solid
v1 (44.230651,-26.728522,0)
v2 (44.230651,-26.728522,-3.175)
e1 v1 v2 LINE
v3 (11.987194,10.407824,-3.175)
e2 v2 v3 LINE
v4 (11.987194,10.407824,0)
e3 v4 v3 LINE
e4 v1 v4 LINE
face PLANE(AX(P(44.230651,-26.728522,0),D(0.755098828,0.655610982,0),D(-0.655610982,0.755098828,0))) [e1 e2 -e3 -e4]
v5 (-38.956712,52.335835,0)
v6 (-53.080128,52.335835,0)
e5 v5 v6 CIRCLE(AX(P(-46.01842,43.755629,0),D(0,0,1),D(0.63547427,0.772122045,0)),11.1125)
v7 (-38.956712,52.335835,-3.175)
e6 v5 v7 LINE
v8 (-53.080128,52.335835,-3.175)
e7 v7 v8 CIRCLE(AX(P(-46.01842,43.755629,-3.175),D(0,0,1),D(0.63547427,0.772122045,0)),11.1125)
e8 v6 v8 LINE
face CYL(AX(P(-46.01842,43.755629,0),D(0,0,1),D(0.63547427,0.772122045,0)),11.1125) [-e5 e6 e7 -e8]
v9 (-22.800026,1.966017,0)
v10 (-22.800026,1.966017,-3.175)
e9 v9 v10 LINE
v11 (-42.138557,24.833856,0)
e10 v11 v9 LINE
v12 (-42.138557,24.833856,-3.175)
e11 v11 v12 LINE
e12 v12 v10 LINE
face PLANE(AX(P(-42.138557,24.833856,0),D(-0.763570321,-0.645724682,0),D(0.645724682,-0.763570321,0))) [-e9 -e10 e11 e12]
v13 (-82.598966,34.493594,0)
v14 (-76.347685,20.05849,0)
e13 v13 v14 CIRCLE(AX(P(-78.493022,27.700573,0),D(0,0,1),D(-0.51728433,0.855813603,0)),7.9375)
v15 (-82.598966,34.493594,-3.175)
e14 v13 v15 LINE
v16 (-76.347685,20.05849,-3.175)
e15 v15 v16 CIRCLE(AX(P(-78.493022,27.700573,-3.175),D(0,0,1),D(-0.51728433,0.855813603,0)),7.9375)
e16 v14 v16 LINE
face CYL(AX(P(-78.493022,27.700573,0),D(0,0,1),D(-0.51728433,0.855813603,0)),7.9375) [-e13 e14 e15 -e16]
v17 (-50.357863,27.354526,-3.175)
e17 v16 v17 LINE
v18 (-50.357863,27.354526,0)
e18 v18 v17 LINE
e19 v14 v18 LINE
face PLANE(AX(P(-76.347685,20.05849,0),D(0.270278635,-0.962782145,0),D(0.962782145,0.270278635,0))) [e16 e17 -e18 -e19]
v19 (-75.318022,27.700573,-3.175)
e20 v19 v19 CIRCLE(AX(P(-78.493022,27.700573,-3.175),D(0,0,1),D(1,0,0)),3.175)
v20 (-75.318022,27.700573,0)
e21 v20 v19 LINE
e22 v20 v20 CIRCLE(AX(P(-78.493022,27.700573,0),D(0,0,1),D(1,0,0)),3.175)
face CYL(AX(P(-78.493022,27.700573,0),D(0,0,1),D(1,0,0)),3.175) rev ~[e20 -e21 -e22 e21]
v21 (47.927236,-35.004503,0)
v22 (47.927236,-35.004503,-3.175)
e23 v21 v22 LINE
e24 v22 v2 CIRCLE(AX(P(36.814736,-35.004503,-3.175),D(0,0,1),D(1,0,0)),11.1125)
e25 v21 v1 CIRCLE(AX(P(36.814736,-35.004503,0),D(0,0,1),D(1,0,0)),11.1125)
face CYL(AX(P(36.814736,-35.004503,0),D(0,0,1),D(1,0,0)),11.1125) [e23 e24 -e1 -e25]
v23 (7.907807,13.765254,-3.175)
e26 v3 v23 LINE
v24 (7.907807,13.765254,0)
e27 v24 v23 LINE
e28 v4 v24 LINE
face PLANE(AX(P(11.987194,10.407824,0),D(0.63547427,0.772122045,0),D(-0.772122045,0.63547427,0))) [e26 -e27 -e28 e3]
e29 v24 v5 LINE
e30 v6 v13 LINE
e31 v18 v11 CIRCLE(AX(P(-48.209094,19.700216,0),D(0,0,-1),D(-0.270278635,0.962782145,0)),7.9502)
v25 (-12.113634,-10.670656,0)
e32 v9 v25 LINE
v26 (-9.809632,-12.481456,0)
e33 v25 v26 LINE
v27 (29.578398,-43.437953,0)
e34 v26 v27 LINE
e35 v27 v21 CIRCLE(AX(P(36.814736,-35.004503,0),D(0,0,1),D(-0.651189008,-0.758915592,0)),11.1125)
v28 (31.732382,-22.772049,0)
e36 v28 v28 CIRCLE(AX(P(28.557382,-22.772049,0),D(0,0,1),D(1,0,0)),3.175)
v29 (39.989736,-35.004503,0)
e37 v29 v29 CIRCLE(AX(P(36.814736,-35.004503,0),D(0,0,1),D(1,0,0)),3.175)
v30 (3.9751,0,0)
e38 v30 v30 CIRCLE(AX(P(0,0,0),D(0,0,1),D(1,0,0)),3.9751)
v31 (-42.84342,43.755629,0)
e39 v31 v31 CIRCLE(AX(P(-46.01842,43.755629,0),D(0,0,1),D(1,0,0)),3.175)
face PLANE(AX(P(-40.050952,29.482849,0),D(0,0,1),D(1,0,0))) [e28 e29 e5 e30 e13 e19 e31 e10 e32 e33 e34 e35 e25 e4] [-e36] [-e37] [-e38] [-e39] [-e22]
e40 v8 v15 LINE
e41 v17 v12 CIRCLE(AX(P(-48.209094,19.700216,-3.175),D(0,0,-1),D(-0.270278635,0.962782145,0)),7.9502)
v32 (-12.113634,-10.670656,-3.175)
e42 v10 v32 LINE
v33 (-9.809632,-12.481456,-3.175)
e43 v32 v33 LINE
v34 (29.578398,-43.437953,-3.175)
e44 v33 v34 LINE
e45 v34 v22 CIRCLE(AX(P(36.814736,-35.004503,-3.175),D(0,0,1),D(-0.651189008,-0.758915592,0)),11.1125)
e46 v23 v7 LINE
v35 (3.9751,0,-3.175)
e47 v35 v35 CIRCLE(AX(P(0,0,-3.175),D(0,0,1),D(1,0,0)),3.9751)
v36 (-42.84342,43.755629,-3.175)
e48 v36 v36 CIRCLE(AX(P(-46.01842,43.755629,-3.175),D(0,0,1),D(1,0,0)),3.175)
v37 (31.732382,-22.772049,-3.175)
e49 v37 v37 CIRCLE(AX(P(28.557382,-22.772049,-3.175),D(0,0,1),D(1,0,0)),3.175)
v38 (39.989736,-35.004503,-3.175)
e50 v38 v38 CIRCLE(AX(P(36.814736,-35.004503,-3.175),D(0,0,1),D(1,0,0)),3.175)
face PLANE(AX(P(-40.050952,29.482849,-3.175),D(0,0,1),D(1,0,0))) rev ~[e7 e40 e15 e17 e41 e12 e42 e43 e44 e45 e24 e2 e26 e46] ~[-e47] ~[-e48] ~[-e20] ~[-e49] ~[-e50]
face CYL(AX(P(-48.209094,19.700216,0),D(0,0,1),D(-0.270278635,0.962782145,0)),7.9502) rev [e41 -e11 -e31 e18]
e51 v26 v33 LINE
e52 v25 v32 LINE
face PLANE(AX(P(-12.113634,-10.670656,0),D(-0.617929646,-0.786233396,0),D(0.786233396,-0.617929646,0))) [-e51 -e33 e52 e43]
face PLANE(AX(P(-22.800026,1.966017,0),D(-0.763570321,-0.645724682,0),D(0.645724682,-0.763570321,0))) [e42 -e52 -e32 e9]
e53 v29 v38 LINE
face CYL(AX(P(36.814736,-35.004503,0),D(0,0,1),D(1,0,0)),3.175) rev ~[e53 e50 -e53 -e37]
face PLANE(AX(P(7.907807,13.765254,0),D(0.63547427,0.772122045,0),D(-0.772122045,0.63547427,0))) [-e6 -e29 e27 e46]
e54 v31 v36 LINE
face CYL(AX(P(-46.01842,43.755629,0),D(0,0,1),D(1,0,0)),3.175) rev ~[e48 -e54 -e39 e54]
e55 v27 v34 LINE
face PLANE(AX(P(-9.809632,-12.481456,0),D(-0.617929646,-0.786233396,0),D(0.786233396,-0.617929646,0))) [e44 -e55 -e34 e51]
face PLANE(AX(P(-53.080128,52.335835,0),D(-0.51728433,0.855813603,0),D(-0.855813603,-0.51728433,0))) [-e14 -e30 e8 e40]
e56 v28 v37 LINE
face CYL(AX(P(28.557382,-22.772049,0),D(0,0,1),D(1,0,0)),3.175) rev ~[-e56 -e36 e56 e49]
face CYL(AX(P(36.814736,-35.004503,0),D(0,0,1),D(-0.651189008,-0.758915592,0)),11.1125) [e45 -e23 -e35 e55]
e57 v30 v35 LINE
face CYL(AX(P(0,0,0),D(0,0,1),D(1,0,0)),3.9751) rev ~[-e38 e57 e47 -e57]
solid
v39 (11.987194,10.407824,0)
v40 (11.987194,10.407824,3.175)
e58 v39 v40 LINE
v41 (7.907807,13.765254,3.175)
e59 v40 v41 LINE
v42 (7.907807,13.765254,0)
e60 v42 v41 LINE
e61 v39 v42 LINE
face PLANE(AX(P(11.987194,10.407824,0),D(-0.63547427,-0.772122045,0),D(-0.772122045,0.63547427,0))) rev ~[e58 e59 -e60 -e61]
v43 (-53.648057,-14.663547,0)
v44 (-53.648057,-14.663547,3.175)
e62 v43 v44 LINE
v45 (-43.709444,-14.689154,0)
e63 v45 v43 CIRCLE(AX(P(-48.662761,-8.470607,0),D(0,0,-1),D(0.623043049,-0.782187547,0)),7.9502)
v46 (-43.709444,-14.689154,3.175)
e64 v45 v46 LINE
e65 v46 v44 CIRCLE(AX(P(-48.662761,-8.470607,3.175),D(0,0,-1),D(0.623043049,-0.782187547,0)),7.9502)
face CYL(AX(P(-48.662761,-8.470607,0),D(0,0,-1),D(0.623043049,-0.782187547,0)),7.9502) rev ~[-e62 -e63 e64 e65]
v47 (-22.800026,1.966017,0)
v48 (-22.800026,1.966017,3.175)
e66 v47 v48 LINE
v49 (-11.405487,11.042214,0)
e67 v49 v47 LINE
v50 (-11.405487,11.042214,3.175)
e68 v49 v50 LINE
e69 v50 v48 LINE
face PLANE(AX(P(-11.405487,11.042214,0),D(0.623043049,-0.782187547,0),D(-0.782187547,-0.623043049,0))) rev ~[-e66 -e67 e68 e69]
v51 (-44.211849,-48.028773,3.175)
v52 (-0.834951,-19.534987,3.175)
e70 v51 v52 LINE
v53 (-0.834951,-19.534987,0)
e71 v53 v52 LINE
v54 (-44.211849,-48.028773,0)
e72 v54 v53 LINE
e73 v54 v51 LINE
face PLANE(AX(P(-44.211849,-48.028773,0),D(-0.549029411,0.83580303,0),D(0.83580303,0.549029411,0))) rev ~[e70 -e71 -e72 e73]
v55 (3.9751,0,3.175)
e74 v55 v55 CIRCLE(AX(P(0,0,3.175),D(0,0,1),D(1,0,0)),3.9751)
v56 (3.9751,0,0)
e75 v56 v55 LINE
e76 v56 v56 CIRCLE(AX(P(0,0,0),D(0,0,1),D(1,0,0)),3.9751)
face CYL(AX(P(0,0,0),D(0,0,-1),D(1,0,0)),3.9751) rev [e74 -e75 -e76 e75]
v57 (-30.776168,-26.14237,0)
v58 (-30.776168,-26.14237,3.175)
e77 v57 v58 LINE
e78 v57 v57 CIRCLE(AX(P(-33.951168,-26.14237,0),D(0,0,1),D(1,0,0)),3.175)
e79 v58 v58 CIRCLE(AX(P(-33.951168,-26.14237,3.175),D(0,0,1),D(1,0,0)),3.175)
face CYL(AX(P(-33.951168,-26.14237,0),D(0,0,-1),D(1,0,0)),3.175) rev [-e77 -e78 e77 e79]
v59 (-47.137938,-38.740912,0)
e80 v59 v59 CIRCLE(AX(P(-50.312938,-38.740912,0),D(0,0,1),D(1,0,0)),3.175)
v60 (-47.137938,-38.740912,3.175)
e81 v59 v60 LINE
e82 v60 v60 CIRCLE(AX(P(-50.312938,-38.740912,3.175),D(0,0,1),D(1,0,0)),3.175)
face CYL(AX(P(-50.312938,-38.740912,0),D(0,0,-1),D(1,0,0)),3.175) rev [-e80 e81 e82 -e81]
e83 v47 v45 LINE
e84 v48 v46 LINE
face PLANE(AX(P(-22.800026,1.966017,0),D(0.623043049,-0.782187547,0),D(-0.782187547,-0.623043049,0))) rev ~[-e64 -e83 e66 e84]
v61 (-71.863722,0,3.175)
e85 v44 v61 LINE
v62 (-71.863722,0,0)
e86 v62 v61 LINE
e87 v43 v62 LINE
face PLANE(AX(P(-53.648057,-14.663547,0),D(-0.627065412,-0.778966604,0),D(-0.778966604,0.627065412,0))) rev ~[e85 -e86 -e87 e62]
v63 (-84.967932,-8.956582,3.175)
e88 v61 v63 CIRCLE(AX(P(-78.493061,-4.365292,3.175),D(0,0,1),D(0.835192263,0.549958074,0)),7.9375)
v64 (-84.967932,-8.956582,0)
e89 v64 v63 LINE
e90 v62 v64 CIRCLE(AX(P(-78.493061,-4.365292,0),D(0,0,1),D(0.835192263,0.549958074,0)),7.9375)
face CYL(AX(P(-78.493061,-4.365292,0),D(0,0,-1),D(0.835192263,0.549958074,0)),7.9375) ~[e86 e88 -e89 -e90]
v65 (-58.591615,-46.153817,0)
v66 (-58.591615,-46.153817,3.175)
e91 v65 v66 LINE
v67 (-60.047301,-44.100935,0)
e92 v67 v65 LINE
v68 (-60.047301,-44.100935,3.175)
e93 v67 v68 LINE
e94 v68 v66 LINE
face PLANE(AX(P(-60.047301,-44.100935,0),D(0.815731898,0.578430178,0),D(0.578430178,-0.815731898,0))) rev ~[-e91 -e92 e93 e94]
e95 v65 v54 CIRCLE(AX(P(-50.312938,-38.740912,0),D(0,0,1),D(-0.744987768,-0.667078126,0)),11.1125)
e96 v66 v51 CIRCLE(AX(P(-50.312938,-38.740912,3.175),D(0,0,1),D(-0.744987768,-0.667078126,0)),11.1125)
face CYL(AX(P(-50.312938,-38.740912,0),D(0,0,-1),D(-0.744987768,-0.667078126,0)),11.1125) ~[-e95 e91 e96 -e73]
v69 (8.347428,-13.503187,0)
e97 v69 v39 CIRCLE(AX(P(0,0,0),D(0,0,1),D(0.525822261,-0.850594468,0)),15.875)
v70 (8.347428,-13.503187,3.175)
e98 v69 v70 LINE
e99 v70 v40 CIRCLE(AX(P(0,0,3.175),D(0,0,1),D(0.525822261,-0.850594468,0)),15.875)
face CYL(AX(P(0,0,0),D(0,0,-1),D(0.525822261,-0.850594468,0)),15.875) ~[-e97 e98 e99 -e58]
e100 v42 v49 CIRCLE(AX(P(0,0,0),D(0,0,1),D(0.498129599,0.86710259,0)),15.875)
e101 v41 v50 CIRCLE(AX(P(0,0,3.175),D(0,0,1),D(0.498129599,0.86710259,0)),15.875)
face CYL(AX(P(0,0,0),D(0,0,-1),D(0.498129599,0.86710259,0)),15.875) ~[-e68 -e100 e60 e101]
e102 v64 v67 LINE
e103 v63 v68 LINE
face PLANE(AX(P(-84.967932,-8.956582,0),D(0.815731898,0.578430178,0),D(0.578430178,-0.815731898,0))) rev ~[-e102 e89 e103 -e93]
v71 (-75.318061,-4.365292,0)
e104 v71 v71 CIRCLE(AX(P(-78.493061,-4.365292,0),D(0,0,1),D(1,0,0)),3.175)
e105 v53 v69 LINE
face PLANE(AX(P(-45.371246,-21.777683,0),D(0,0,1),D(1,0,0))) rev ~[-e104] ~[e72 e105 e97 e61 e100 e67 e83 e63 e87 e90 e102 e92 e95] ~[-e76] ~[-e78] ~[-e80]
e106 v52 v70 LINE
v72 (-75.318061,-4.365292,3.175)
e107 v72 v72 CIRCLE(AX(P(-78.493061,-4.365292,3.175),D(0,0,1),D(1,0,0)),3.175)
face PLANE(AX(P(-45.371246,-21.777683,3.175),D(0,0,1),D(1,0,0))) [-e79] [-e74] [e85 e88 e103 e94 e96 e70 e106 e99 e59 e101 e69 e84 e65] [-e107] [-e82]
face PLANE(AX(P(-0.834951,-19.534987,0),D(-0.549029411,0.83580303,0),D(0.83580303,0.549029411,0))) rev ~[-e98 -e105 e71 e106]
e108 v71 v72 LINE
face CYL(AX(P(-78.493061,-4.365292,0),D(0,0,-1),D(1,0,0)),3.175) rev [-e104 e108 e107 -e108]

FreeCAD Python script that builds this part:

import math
import FreeCAD as App
import Part
import Sketcher

V = App.Vector
Q = App.Units.Quantity

doc = App.newDocument("Part")
params = doc.addObject("Spreadsheet::Sheet", "Params")
for row, (alias, value) in enumerate([
    ("sketch1_diameter", "0.25 in"),
    ("sketch1_diameter2", "0.25 in"),
    ("sketch1_diameter3", "0.25 in"),
    ("sketch1_diameter4", "0.313 in"),
    ("sketch1_radius", "0.625 in"),
    ("pad1_length", "0.125 in"),
    ("sketch2_diameter", "0.25 in"),
    ("sketch2_diameter2", "0.25 in"),
    ("sketch2_diameter3", "0.25 in"),
    ("sketch2_diameter4", "0.25 in"),
    ("sketch2_diameter5", "0.313 in"),
    ("pad2_length", "0.125 in"),
], start=1):
    params.set(f"A{row}", alias)
    params.set(f"B{row}", "=" + value)
    params.setAlias(f"B{row}", alias)

body = doc.addObject("PartDesign::Body", "Body")

# Sketch on XY plane
sketch1 = body.newObject("Sketcher::SketchObject", "Sketch")
sketch1.AttachmentSupport = (doc.getObject("XY_Plane"), [""])
sketch1.MapMode = "FlatFace"
sketch1.addGeometry([
    Part.LineSegment(V(-44.211849, -48.028773, 0), V(-0.834951, -19.534987, 0)),  # 0
    Part.LineSegment(V(-0.834951, -19.534987, 0), V(8.347428, -13.503187, 0)),  # 1
    Part.ArcOfCircle(Part.Circle(V(0, 0, 0), V(0, 0, 1), 15.875), math.radians(-58.276386), math.radians(40.965994)),  # 2
    Part.LineSegment(V(11.987194, 10.407824, 0), V(7.907807, 13.765254, 0)),  # 3
    Part.ArcOfCircle(Part.Circle(V(0, 0, 0), V(0, 0, 1), 15.875), math.radians(60.123668), math.radians(135.927139)),  # 4
    Part.LineSegment(V(-11.405487, 11.042214, 0), V(-22.800026, 1.966017, 0)),  # 5
    Part.LineSegment(V(-22.800026, 1.966017, 0), V(-43.709444, -14.689154, 0)),  # 6
    Part.ArcOfCircle(Part.Circle(V(-48.662761, -8.470607, 0), V(0, 0, 1), 7.9502), math.radians(-128.833944), math.radians(-51.461304)),  # 7
    Part.LineSegment(V(-53.648057, -14.663547, 0), V(-71.863722, 0, 0)),  # 8
    Part.ArcOfCircle(Part.Circle(V(-78.493061, -4.365292, 0), V(0, 0, 1), 7.9375), math.radians(33.364137), math.radians(215.340205)),  # 9
    Part.LineSegment(V(-84.967932, -8.956582, 0), V(-60.047301, -44.100935, 0)),  # 10
    Part.LineSegment(V(-60.047301, -44.100935, 0), V(-58.591615, -46.153817, 0)),  # 11
    Part.ArcOfCircle(Part.Circle(V(-50.312938, -38.740912, 0), V(0, 0, 1), 11.1125), math.radians(-138.158048), math.radians(-56.699548)),  # 12
    Part.Circle(V(-50.312938, -38.740912, 0), V(0, 0, 1), 3.175),  # 13
    Part.Circle(V(-33.951168, -26.14237, 0), V(0, 0, 1), 3.175),  # 14
    Part.Circle(V(-78.493061, -4.365292, 0), V(0, 0, 1), 3.175),  # 15
    Part.Circle(V(0, 0, 0), V(0, 0, 1), 3.9751),  # 16
], False)
sketch1.addConstraint([
    Sketcher.Constraint("Coincident", 0, 2, 1, 1),
    Sketcher.Constraint("Coincident", 1, 2, 2, 1),
    Sketcher.Constraint("Coincident", 2, 2, 3, 1),
    Sketcher.Constraint("Coincident", 3, 2, 4, 1),
    Sketcher.Constraint("Coincident", 4, 2, 5, 1),
    Sketcher.Constraint("Coincident", 5, 2, 6, 1),
    Sketcher.Constraint("Coincident", 6, 2, 7, 2),
    Sketcher.Constraint("Coincident", 7, 1, 8, 1),
    Sketcher.Constraint("Coincident", 8, 2, 9, 1),
    Sketcher.Constraint("Coincident", 9, 2, 10, 1),
    Sketcher.Constraint("Coincident", 10, 2, 11, 1),
    Sketcher.Constraint("Coincident", 11, 2, 12, 1),
    Sketcher.Constraint("Coincident", 12, 2, 0, 1),
    Sketcher.Constraint("Coincident", 2, 3, -1, 1),
    Sketcher.Constraint("Coincident", 4, 3, -1, 1),
    Sketcher.Constraint("Coincident", 16, 3, -1, 1),
    Sketcher.Constraint("Coincident", 13, 3, 12, 3),
    Sketcher.Constraint("Coincident", 15, 3, 9, 3),
    Sketcher.Constraint("PointOnObject", 8, 2, -1),
    Sketcher.Constraint("Diameter", 13, Q("0.25 in")),
    Sketcher.Constraint("Diameter", 14, Q("0.25 in")),
    Sketcher.Constraint("Diameter", 15, Q("0.25 in")),
    Sketcher.Constraint("Diameter", 16, Q("0.313 in")),
    Sketcher.Constraint("Radius", 2, Q("0.625 in")),
    Sketcher.Constraint("Radius", 4, Q("0.625 in")),
    Sketcher.Constraint("Radius", 7, Q("0.313 in")),
    Sketcher.Constraint("Radius", 9, Q("0.3125 in")),
    Sketcher.Constraint("Radius", 12, Q("0.4375 in")),
    Sketcher.Constraint("Distance", 8, 23.384398),
    Sketcher.Constraint("DistanceX", 10, 2, -1, 1, 60.047301),
    Sketcher.Constraint("DistanceX", 9, 3, 7, 3, 29.830299),
    Sketcher.Constraint("DistanceY", 0, 2, 1, 2, 6.0318),
    Sketcher.Constraint("Distance", 0, 51.898469),
    Sketcher.Constraint("Distance", 5, 14.567529),
    Sketcher.Constraint("DistanceX", 7, 3, -1, 1, 48.662761),
    Sketcher.Constraint("DistanceX", 12, 3, -1, 1, 50.312938),
    Sketcher.Constraint("DistanceY", 12, 3, -1, 1, 38.740912),
    Sketcher.Constraint("DistanceX", 14, 3, -1, 1, 33.951168),
    Sketcher.Constraint("DistanceY", 14, 3, -1, 1, 26.14237),
    Sketcher.Constraint("DistanceX", 0, 2, -1, 1, 0.834951),
    Sketcher.Constraint("DistanceX", -1, 1, 1, 2, 8.347428),
    Sketcher.Constraint("DistanceX", 8, 2, -1, 1, 71.863722),
    Sketcher.Constraint("DistanceY", 9, 2, -1, 1, 8.956582),
    Sketcher.Constraint("DistanceY", 0, 2, 7, 3, 11.06438),
    Sketcher.Constraint("DistanceY", 1, 2, 2, 2, 23.911012),
    Sketcher.Constraint("DistanceY", 2, 2, 3, 2, 3.357429),
    Sketcher.Constraint("DistanceY", 4, 2, 3, 2, 2.723039),
    Sketcher.Constraint("DistanceX", 5, 2, 4, 2, 11.39454),
    Sketcher.Constraint("DistanceX", 6, 2, 5, 2, 20.909418),
    Sketcher.Constraint("DistanceY", 10, 2, 6, 2, 29.41178),
    Sketcher.Constraint("DistanceX", 11, 2, 7, 1, 4.943558),
])
sketch1.setExpression("Constraints[19]", "Params.sketch1_diameter")
sketch1.setExpression("Constraints[20]", "Params.sketch1_diameter2")
sketch1.setExpression("Constraints[21]", "Params.sketch1_diameter3")
sketch1.setExpression("Constraints[22]", "Params.sketch1_diameter4")
sketch1.setExpression("Constraints[23]", "Params.sketch1_radius")
pad1 = body.newObject("PartDesign::Pad", "Pad")
pad1.Profile = sketch1
pad1.setExpression("Length", "Params.pad1_length")
body2 = doc.addObject("PartDesign::Body", "Body001")

# Sketch on XY plane
sketch2 = body2.newObject("Sketcher::SketchObject", "Sketch001")
sketch2.AttachmentSupport = (doc.getObject("XY_Plane001"), [""])
sketch2.MapMode = "FlatFace"
sketch2.addGeometry([
    Part.LineSegment(V(-42.138557, 24.833856, 0), V(-22.800026, 1.966017, 0)),  # 0
    Part.LineSegment(V(-22.800026, 1.966017, 0), V(-12.113634, -10.670656, 0)),  # 1
    Part.LineSegment(V(-12.113634, -10.670656, 0), V(-9.809632, -12.481456, 0)),  # 2
    Part.LineSegment(V(-9.809632, -12.481456, 0), V(29.578398, -43.437953, 0)),  # 3
    Part.ArcOfCircle(Part.Circle(V(36.814736, -35.004503, 0), V(0, 0, 1), 11.1125), math.radians(-130.631308), math.radians(0)),  # 4
    Part.ArcOfCircle(Part.Circle(V(36.814736, -35.004503, 0), V(0, 0, 1), 11.1125), math.radians(0), math.radians(48.137216)),  # 5
    Part.LineSegment(V(44.230651, -26.728522, 0), V(11.987194, 10.407824, 0)),  # 6
    Part.LineSegment(V(11.987194, 10.407824, 0), V(7.907807, 13.765254, 0)),  # 7
    Part.LineSegment(V(7.907807, 13.765254, 0), V(-38.956712, 52.335835, 0)),  # 8
    Part.ArcOfCircle(Part.Circle(V(-46.01842, 43.755629, 0), V(0, 0, 1), 11.1125), math.radians(50.544831), math.radians(129.455169)),  # 9
    Part.LineSegment(V(-53.080128, 52.335835, 0), V(-82.598966, 34.493594, 0)),  # 10
    Part.ArcOfCircle(Part.Circle(V(-78.493022, 27.700573, 0), V(0, 0, 1), 7.9375), math.radians(121.150265), math.radians(285.680848)),  # 11
    Part.LineSegment(V(-76.347685, 20.05849, 0), V(-50.357863, 27.354526, 0)),  # 12
    Part.ArcOfCircle(Part.Circle(V(-48.209094, 19.700216, 0), V(0, 0, 1), 7.9502), math.radians(40.220031), math.radians(105.680848)),  # 13
    Part.Circle(V(36.814736, -35.004503, 0), V(0, 0, 1), 3.175),  # 14
    Part.Circle(V(28.557382, -22.772049, 0), V(0, 0, 1), 3.175),  # 15
    Part.Circle(V(0, 0, 0), V(0, 0, 1), 3.9751),  # 16
    Part.Circle(V(-78.493022, 27.700573, 0), V(0, 0, 1), 3.175),  # 17
    Part.Circle(V(-46.01842, 43.755629, 0), V(0, 0, 1), 3.175),  # 18
], False)
sketch2.addConstraint([
    Sketcher.Constraint("Coincident", 0, 2, 1, 1),
    Sketcher.Constraint("Coincident", 1, 2, 2, 1),
    Sketcher.Constraint("Coincident", 2, 2, 3, 1),
    Sketcher.Constraint("Coincident", 3, 2, 4, 1),
    Sketcher.Constraint("Coincident", 4, 2, 5, 1),
    Sketcher.Constraint("Coincident", 5, 2, 6, 1),
    Sketcher.Constraint("Coincident", 6, 2, 7, 1),
    Sketcher.Constraint("Coincident", 7, 2, 8, 1),
    Sketcher.Constraint("Coincident", 8, 2, 9, 1),
    Sketcher.Constraint("Coincident", 9, 2, 10, 1),
    Sketcher.Constraint("Coincident", 10, 2, 11, 1),
    Sketcher.Constraint("Coincident", 11, 2, 12, 1),
    Sketcher.Constraint("Coincident", 12, 2, 13, 2),
    Sketcher.Constraint("Coincident", 13, 1, 0, 1),
    Sketcher.Constraint("Coincident", 16, 3, -1, 1),
    Sketcher.Constraint("Coincident", 5, 3, 4, 3),
    Sketcher.Constraint("Coincident", 14, 3, 4, 3),
    Sketcher.Constraint("Coincident", 17, 3, 11, 3),
    Sketcher.Constraint("Coincident", 18, 3, 9, 3),
    Sketcher.Constraint("Diameter", 14, Q("0.25 in")),
    Sketcher.Constraint("Diameter", 15, Q("0.25 in")),
    Sketcher.Constraint("Diameter", 17, Q("0.25 in")),
    Sketcher.Constraint("Diameter", 18, Q("0.25 in")),
    Sketcher.Constraint("Diameter", 16, Q("0.313 in")),
    Sketcher.Constraint("Radius", 4, Q("0.4375 in")),
    Sketcher.Constraint("Radius", 9, Q("0.4375 in")),
    Sketcher.Constraint("Radius", 11, Q("0.3125 in")),
    Sketcher.Constraint("Radius", 13, Q("0.313 in")),
    Sketcher.Constraint("DistanceY", 15, 3, 9, 3, Q("2.6191999 in")),
    Sketcher.Constraint("Distance", 12, 26.9945),
    Sketcher.Constraint("DistanceX", 9, 3, 15, 3, 74.575801),
    Sketcher.Constraint("DistanceY", 0, 2, 13, 3, 17.734199),
    Sketcher.Constraint("DistanceX", 1, 2, 2, 2, 2.304002),
    Sketcher.Constraint("DistanceY", 2, 2, 1, 2, 1.8108),
    Sketcher.Constraint("Distance", 0, 29.94857),
    Sketcher.Constraint("Distance", 3, 50.097121),
    Sketcher.Constraint("Distance", 8, 60.69574),
    Sketcher.Constraint("DistanceX", 9, 3, -1, 1, 46.01842),
    Sketcher.Constraint("DistanceY", -1, 1, 9, 3, 43.755629),
    Sketcher.Constraint("DistanceX", -1, 1, 5, 2, 44.230651),
    Sketcher.Constraint("DistanceX", 8, 2, -1, 1, 38.956712),
    Sketcher.Constraint("DistanceY", -1, 1, 11, 2, 20.05849),
    Sketcher.Constraint("DistanceY", 4, 3, 9, 3, 78.760132),
    Sketcher.Constraint("DistanceX", 11, 3, 13, 3, 30.283928),
    Sketcher.Constraint("DistanceX", 13, 3, 4, 3, 85.02383),
    Sketcher.Constraint("DistanceY", 4, 3, 13, 3, 54.704719),
    Sketcher.Constraint("DistanceY", 15, 3, 17, 3, 50.472622),
    Sketcher.Constraint("DistanceX", 13, 3, 1, 2, 36.09546),
    Sketcher.Constraint("DistanceY", 2, 2, 13, 3, 32.181672),
    Sketcher.Constraint("DistanceY", 3, 2, 4, 2, 8.43345),
    Sketcher.Constraint("DistanceY", 4, 2, 5, 2, 8.275981),
    Sketcher.Constraint("DistanceY", 2, 2, 6, 2, 22.88928),
    Sketcher.Constraint("DistanceX", 0, 2, 6, 2, 34.78722),
    Sketcher.Constraint("DistanceY", 6, 2, 7, 2, 3.357429),
    Sketcher.Constraint("DistanceY", 13, 3, 9, 2, 32.635619),
    Sketcher.Constraint("DistanceY", 11, 3, 10, 2, 6.79302),
    Sketcher.Constraint("DistanceY", 13, 3, 13, 1, 5.13364),
])
sketch2.setExpression("Constraints[19]", "Params.sketch2_diameter")
sketch2.setExpression("Constraints[20]", "Params.sketch2_diameter2")
sketch2.setExpression("Constraints[21]", "Params.sketch2_diameter3")
sketch2.setExpression("Constraints[22]", "Params.sketch2_diameter4")
sketch2.setExpression("Constraints[23]", "Params.sketch2_diameter5")
pad2 = body2.newObject("PartDesign::Pad", "Pad001")
pad2.Profile = sketch2
pad2.setExpression("Length", "Params.pad2_length")
pad2.Reversed = True

doc.recompute()
